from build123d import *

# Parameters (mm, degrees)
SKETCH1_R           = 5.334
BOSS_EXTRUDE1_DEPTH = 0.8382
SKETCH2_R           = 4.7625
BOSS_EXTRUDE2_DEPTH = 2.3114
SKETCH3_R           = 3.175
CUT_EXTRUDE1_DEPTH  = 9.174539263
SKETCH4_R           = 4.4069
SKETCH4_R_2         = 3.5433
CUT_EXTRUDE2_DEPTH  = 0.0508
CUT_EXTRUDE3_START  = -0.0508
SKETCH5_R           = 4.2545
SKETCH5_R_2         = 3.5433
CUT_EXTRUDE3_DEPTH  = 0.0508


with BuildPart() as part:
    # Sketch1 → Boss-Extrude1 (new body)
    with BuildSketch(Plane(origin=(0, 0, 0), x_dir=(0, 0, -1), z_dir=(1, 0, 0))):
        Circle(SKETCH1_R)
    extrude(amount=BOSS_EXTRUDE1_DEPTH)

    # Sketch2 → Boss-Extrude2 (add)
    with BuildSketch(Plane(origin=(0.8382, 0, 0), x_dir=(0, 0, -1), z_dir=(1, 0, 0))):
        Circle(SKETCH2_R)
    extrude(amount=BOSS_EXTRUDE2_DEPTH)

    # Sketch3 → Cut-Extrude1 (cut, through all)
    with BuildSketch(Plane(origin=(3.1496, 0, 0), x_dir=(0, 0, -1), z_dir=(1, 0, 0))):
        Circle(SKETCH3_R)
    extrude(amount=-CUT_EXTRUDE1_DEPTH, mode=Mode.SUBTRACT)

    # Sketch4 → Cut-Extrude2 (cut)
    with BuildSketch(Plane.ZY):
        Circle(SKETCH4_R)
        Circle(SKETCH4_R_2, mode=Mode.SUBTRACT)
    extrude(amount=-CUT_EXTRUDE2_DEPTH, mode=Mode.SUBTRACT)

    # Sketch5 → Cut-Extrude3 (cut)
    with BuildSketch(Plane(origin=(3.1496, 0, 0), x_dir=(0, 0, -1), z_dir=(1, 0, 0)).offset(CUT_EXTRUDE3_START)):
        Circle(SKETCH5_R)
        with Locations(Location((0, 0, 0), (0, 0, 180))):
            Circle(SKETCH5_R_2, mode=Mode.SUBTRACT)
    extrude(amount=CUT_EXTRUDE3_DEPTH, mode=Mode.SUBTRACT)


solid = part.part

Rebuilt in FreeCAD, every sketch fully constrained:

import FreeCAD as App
import Part
import Sketcher

V = App.Vector
Q = App.Units.Quantity

doc = App.newDocument("Part")
body = doc.addObject("PartDesign::Body", "Body")

# Sketch on YZ plane
sketch1 = doc.addObject("Sketcher::SketchObject", "Sketch")
body.addObject(sketch1)
sketch1.AttachmentSupport = (doc.YZ_Plane, [""])
sketch1.MapMode = "FlatFace"
sketch1.addGeometry(Part.Circle(V(0, 0, 0), V(0, 0, 1), 5.334), False)
sketch1.addConstraint([
    Sketcher.Constraint("Coincident", 0, 3, -1, 1),
    Sketcher.Constraint("Diameter", 0, Q("0.42 in")),
])
pad1 = doc.addObject("PartDesign::Pad", "Pad")
body.addObject(pad1)
pad1.Profile = sketch1
pad1.Length = Q("0.033 in")

# Sketch on YZ plane
sketch2 = doc.addObject("Sketcher::SketchObject", "Sketch001")
body.addObject(sketch2)
sketch2.AttachmentSupport = (doc.YZ_Plane, [""])
sketch2.MapMode = "FlatFace"
sketch2.AttachmentOffset = App.Placement(V(0, 0, 0.033 * 25.4), App.Rotation())
sketch2.addGeometry(Part.Circle(V(0, 0, 0), V(0, 0, 1), 4.7625), False)
sketch2.addConstraint([
    Sketcher.Constraint("Coincident", 0, 3, -1, 1),
    Sketcher.Constraint("Diameter", 0, Q("0.375 in")),
])
pad2 = doc.addObject("PartDesign::Pad", "Pad001")
body.addObject(pad2)
pad2.Profile = sketch2
pad2.Length = Q("0.091 in")

# Sketch on YZ plane
sketch3 = doc.addObject("Sketcher::SketchObject", "Sketch002")
body.addObject(sketch3)
sketch3.AttachmentSupport = (doc.YZ_Plane, [""])
sketch3.MapMode = "FlatFace"
sketch3.AttachmentOffset = App.Placement(V(0, 0, 0.124 * 25.4), App.Rotation())
sketch3.addGeometry(Part.Circle(V(0, 0, 0), V(0, 0, 1), 3.175), False)
sketch3.addConstraint([
    Sketcher.Constraint("Coincident", 0, 3, -1, 1),
    Sketcher.Constraint("Diameter", 0, Q("0.25 in")),
])
pocket1 = doc.addObject("PartDesign::Pocket", "Pocket")
body.addObject(pocket1)
pocket1.Profile = sketch3
pocket1.Type = "ThroughAll"

# Sketch on YZ plane
sketch4 = doc.addObject("Sketcher::SketchObject", "Sketch003")
body.addObject(sketch4)
sketch4.AttachmentSupport = (doc.YZ_Plane, [""])
sketch4.MapMode = "FlatFace"
sketch4.addGeometry([
    Part.Circle(V(0, 0, 0), V(0, 0, 1), 4.4069),
    Part.Circle(V(0, 0, 0), V(0, 0, 1), 3.5433),
], False)
sketch4.addConstraint([
    Sketcher.Constraint("Coincident", 0, 3, -1, 1),
    Sketcher.Constraint("Coincident", 1, 3, -1, 1),
    Sketcher.Constraint("Diameter", 0, Q("0.347 in")),
    Sketcher.Constraint("Diameter", 1, Q("0.279 in")),
])
pocket2 = doc.addObject("PartDesign::Pocket", "Pocket001")
body.addObject(pocket2)
pocket2.Profile = sketch4
pocket2.Length = Q("0.002 in")
pocket2.Reversed = True

# Sketch on YZ plane
sketch5 = doc.addObject("Sketcher::SketchObject", "Sketch004")
body.addObject(sketch5)
sketch5.AttachmentSupport = (doc.YZ_Plane, [""])
sketch5.MapMode = "FlatFace"
sketch5.AttachmentOffset = App.Placement(V(0, 0, 0.122 * 25.4), App.Rotation())
sketch5.addGeometry([
    Part.Circle(V(0, 0, 0), V(0, 0, 1), 4.2545),
    Part.Circle(V(0, 0, 0), V(0, 0, 1), 3.5433),
], False)
sketch5.addConstraint([
    Sketcher.Constraint("Coincident", 0, 3, -1, 1),
    Sketcher.Constraint("Coincident", 1, 3, -1, 1),
    Sketcher.Constraint("Diameter", 0, Q("0.335 in")),
    Sketcher.Constraint("Diameter", 1, Q("0.279 in")),
])
pocket3 = doc.addObject("PartDesign::Pocket", "Pocket002")
body.addObject(pocket3)
pocket3.Profile = sketch5
pocket3.Length = Q("0.002 in")
pocket3.Reversed = True

doc.recompute()
